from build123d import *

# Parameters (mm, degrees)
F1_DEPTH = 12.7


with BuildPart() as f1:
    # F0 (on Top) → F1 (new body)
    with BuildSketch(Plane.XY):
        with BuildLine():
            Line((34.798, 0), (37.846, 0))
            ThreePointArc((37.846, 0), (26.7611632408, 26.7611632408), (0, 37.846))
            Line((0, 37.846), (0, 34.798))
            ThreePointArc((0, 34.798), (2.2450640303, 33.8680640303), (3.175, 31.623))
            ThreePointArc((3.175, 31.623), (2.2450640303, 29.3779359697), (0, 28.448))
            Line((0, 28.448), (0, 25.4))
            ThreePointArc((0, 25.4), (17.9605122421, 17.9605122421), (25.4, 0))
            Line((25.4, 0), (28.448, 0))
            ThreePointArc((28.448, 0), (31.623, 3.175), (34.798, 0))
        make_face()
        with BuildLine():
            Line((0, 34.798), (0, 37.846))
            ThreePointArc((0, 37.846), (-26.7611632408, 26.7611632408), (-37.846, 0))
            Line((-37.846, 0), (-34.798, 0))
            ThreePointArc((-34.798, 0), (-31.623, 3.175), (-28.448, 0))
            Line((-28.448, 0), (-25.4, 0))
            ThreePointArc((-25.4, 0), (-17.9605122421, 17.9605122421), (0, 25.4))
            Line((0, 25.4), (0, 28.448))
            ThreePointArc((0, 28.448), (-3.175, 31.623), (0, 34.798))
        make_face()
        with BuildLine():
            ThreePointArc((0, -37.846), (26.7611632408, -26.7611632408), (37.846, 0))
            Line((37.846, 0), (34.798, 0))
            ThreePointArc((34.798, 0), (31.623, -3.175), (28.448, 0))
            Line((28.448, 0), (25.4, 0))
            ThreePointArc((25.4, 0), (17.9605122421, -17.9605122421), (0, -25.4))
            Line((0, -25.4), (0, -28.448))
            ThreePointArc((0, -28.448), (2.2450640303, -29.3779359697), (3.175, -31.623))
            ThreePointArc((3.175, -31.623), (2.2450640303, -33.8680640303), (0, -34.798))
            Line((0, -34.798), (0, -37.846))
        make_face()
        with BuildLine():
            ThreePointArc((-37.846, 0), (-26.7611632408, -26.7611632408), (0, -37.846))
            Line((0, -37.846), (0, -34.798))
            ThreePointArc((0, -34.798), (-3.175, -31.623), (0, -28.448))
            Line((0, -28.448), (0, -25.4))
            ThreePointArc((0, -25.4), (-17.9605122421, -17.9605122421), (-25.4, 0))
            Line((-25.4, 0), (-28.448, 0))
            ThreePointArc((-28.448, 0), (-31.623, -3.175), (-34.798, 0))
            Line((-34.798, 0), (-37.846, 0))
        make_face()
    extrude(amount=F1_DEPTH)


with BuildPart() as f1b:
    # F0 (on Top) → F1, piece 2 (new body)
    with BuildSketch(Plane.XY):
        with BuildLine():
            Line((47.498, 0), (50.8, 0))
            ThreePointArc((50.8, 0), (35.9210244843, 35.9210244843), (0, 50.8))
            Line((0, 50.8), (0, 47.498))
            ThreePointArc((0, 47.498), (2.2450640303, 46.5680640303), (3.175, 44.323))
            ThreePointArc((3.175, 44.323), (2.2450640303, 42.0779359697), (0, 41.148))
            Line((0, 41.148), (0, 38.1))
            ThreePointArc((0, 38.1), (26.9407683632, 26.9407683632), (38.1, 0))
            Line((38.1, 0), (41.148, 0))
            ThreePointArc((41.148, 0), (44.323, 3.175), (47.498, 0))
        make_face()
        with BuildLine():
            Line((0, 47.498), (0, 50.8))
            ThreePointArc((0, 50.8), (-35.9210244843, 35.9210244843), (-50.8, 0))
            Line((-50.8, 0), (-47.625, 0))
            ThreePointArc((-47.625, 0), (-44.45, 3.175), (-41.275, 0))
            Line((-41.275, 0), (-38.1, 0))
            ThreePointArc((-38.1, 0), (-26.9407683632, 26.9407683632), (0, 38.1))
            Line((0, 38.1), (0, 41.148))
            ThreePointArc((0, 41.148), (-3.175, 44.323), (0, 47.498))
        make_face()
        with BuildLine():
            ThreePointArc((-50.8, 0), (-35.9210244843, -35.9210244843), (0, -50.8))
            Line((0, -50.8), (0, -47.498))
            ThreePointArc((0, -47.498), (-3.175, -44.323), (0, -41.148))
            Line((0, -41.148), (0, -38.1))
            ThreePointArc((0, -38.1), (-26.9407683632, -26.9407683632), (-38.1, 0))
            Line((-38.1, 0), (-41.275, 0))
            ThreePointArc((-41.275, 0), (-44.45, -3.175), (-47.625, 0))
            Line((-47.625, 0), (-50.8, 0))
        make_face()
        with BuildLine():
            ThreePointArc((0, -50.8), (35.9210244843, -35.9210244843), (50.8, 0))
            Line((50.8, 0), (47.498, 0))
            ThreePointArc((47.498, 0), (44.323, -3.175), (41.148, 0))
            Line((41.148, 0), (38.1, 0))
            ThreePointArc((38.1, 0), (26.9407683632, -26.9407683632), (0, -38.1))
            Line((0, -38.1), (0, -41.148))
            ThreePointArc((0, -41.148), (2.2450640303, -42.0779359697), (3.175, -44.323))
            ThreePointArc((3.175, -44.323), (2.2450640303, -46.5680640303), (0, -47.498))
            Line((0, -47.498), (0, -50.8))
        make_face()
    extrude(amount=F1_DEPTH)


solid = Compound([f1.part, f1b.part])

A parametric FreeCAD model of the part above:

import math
import FreeCAD as App
import Part
import Sketcher
from FreeCAD import Vector
Q = App.Units.Quantity

doc = App.newDocument("Part")
body = doc.addObject("PartDesign::Body", "Body")

# Sketch on XY plane
sketch1 = doc.addObject("Sketcher::SketchObject", "Sketch")
body.addObject(sketch1)
sketch1.AttachmentSupport = (doc.XY_Plane, [""])
sketch1.MapMode = "FlatFace"
sketch1.addGeometry(Part.ArcOfCircle(Part.Circle(Vector(0, 0, 0), Vector(0, 0, 1), 37.846), math.radians(0), math.radians(90)), False)
sketch1.addGeometry(Part.ArcOfCircle(Part.Circle(Vector(0, 0, 0), Vector(0, 0, 1), 37.846), math.radians(90), math.radians(180)), False)
sketch1.addGeometry(Part.ArcOfCircle(Part.Circle(Vector(0, 0, 0), Vector(0, 0, 1), 37.846), math.radians(180), math.radians(270)), False)
sketch1.addGeometry(Part.ArcOfCircle(Part.Circle(Vector(0, 0, 0), Vector(0, 0, 1), 37.846), math.radians(-90), math.radians(0)), False)
sketch1.addGeometry(Part.Circle(Vector(-31.623, 0, 0), Vector(0, 0, 1), 3.175), False)
sketch1.addGeometry(Part.ArcOfCircle(Part.Circle(Vector(0, 0, 0), Vector(0, 0, 1), 25.4), math.radians(90), math.radians(180)), False)
sketch1.addGeometry(Part.ArcOfCircle(Part.Circle(Vector(0, 0, 0), Vector(0, 0, 1), 25.4), math.radians(0), math.radians(90)), False)
sketch1.addGeometry(Part.ArcOfCircle(Part.Circle(Vector(0, 0, 0), Vector(0, 0, 1), 25.4), math.radians(-90), math.radians(0)), False)
sketch1.addGeometry(Part.ArcOfCircle(Part.Circle(Vector(0, 0, 0), Vector(0, 0, 1), 25.4), math.radians(180), math.radians(270)), False)
sketch1.addGeometry(Part.ArcOfCircle(Part.Circle(Vector(0, -31.623, 0), Vector(0, 0, 1), 3.175), math.radians(0), math.radians(90)), False)
sketch1.addGeometry(Part.ArcOfCircle(Part.Circle(Vector(0, -31.623, 0), Vector(0, 0, 1), 3.175), math.radians(-90), math.radians(0)), False)
sketch1.addGeometry(Part.ArcOfCircle(Part.Circle(Vector(0, -31.623, 0), Vector(0, 0, 1), 3.175), math.radians(90), math.radians(270)), False)
sketch1.addGeometry(Part.Circle(Vector(31.623, 0, 0), Vector(0, 0, 1), 3.175), False)
sketch1.addGeometry(Part.ArcOfCircle(Part.Circle(Vector(0, 31.623, 0), Vector(0, 0, 1), 3.175), math.radians(0), math.radians(90)), False)
sketch1.addGeometry(Part.ArcOfCircle(Part.Circle(Vector(0, 31.623, 0), Vector(0, 0, 1), 3.175), math.radians(-90), math.radians(0)), False)
sketch1.addGeometry(Part.ArcOfCircle(Part.Circle(Vector(0, 31.623, 0), Vector(0, 0, 1), 3.175), math.radians(90), math.radians(270)), False)
sketch1.addConstraint(Sketcher.Constraint("Tangent", 0, 2, 1, 1))
sketch1.addConstraint(Sketcher.Constraint("Tangent", 1, 2, 2, 1))
sketch1.addConstraint(Sketcher.Constraint("Tangent", 2, 2, 3, 1))
sketch1.addConstraint(Sketcher.Constraint("Tangent", 3, 2, 0, 1))
sketch1.addConstraint(Sketcher.Constraint("Tangent", 5, 1, 6, 2))
sketch1.addConstraint(Sketcher.Constraint("Tangent", 6, 1, 7, 2))
sketch1.addConstraint(Sketcher.Constraint("Tangent", 7, 1, 8, 2))
sketch1.addConstraint(Sketcher.Constraint("Tangent", 8, 1, 5, 2))
sketch1.addConstraint(Sketcher.Constraint("Tangent", 9, 1, 10, 2))
sketch1.addConstraint(Sketcher.Constraint("Tangent", 10, 1, 11, 2))
sketch1.addConstraint(Sketcher.Constraint("Tangent", 11, 1, 9, 2))
sketch1.addConstraint(Sketcher.Constraint("Tangent", 13, 1, 14, 2))
sketch1.addConstraint(Sketcher.Constraint("Tangent", 14, 1, 15, 2))
sketch1.addConstraint(Sketcher.Constraint("Tangent", 15, 1, 13, 2))
sketch1.addConstraint(Sketcher.Constraint("Coincident", 0, 3, -1, 1))
sketch1.addConstraint(Sketcher.Constraint("Coincident", 5, 3, -1, 1))
sketch1.addConstraint(Sketcher.Constraint("Equal", 0, 1))
sketch1.addConstraint(Sketcher.Constraint("Equal", 5, 6))
sketch1.addConstraint(Sketcher.Constraint("Equal", 4, 9))
sketch1.addConstraint(Sketcher.Constraint("Equal", 11, 12))
sketch1.addConstraint(Sketcher.Constraint("Equal", 12, 13))
sketch1.addConstraint(Sketcher.Constraint("Symmetric", 4, 3, 12, 3, -1, 1))
sketch1.addConstraint(Sketcher.Constraint("Symmetric", 9, 3, 13, 3, -1, 1))
sketch1.addConstraint(Sketcher.Constraint("Symmetric", 9, 1, 13, 1, -1))
sketch1.addConstraint(Sketcher.Constraint("PointOnObject", 4, 3, -1))
sketch1.addConstraint(Sketcher.Constraint("PointOnObject", 0, 2, -2))
sketch1.addConstraint(Sketcher.Constraint("PointOnObject", 1, 2, -1))
sketch1.addConstraint(Sketcher.Constraint("PointOnObject", 2, 2, -2))
sketch1.addConstraint(Sketcher.Constraint("PointOnObject", 3, 2, -1))
sketch1.addConstraint(Sketcher.Constraint("PointOnObject", 5, 1, -2))
sketch1.addConstraint(Sketcher.Constraint("PointOnObject", 6, 1, -1))
sketch1.addConstraint(Sketcher.Constraint("PointOnObject", 7, 1, -2))
sketch1.addConstraint(Sketcher.Constraint("PointOnObject", 8, 1, -1))
sketch1.addConstraint(Sketcher.Constraint("PointOnObject", 10, 1, -2))
sketch1.addConstraint(Sketcher.Constraint("PointOnObject", 11, 1, -2))
sketch1.addConstraint(Sketcher.Constraint("PointOnObject", 14, 1, -2))
sketch1.addConstraint(Sketcher.Constraint("PointOnObject", 15, 1, -2))
sketch1.addConstraint(Sketcher.Constraint("Horizontal", 11, 3, 9, 1))
sketch1.addConstraint(Sketcher.Constraint("Radius", 5, Q("1 in")))
sketch1.addConstraint(Sketcher.Constraint("Diameter", 4, Q("0.25 in")))
sketch1.addConstraint(Sketcher.Constraint("Radius", 0, Q("1.49 in")))
sketch1.addConstraint(Sketcher.Constraint("DistanceY", 10, 1, -1, 1, Q("1.37 in")))
sketch1.addConstraint(Sketcher.Constraint("DistanceX", 4, 3, -1, 1, Q("1.245 in")))
pad1 = doc.addObject("PartDesign::Pad", "Pad")
body.addObject(pad1)
pad1.Profile = sketch1
pad1.Length = Q("0.5 in")
body2 = doc.addObject("PartDesign::Body", "Body001")

# Sketch on XY plane
sketch2 = doc.addObject("Sketcher::SketchObject", "Sketch001")
body2.addObject(sketch2)
sketch2.AttachmentSupport = (doc.getObject("XY_Plane001"), [""])
sketch2.MapMode = "FlatFace"
sketch2.addGeometry(Part.ArcOfCircle(Part.Circle(Vector(0, 0, 0), Vector(0, 0, 1), 50.8), math.radians(0), math.radians(90)), False)
sketch2.addGeometry(Part.ArcOfCircle(Part.Circle(Vector(0, 0, 0), Vector(0, 0, 1), 50.8), math.radians(90), math.radians(180)), False)
sketch2.addGeometry(Part.ArcOfCircle(Part.Circle(Vector(0, 0, 0), Vector(0, 0, 1), 50.8), math.radians(180), math.radians(270)), False)
sketch2.addGeometry(Part.ArcOfCircle(Part.Circle(Vector(0, 0, 0), Vector(0, 0, 1), 50.8), math.radians(-90), math.radians(0)), False)
sketch2.addGeometry(Part.ArcOfCircle(Part.Circle(Vector(0, -44.323, 0), Vector(0, 0, 1), 3.175), math.radians(90), math.radians(270)), False)
sketch2.addGeometry(Part.ArcOfCircle(Part.Circle(Vector(0, -44.323, 0), Vector(0, 0, 1), 3.175), math.radians(0), math.radians(90)), False)
sketch2.addGeometry(Part.ArcOfCircle(Part.Circle(Vector(0, -44.323, 0), Vector(0, 0, 1), 3.175), math.radians(-90), math.radians(0)), False)
sketch2.addGeometry(Part.ArcOfCircle(Part.Circle(Vector(0, 0, 0), Vector(0, 0, 1), 38.1), math.radians(180), math.radians(270)), False)
sketch2.addGeometry(Part.ArcOfCircle(Part.Circle(Vector(0, 0, 0), Vector(0, 0, 1), 38.1), math.radians(90), math.radians(180)), False)
sketch2.addGeometry(Part.ArcOfCircle(Part.Circle(Vector(0, 0, 0), Vector(0, 0, 1), 38.1), math.radians(0), math.radians(90)), False)
sketch2.addGeometry(Part.ArcOfCircle(Part.Circle(Vector(0, 0, 0), Vector(0, 0, 1), 38.1), math.radians(-90), math.radians(0)), False)
sketch2.addGeometry(Part.Circle(Vector(44.323, 0, 0), Vector(0, 0, 1), 3.175), False)
sketch2.addGeometry(Part.Circle(Vector(-44.45, 0, 0), Vector(0, 0, 1), 3.175), False)
sketch2.addGeometry(Part.ArcOfCircle(Part.Circle(Vector(0, 44.323, 0), Vector(0, 0, 1), 3.175), math.radians(0), math.radians(90)), False)
sketch2.addGeometry(Part.ArcOfCircle(Part.Circle(Vector(0, 44.323, 0), Vector(0, 0, 1), 3.175), math.radians(-90), math.radians(0)), False)
sketch2.addGeometry(Part.ArcOfCircle(Part.Circle(Vector(0, 44.323, 0), Vector(0, 0, 1), 3.175), math.radians(90), math.radians(270)), False)
sketch2.addConstraint(Sketcher.Constraint("Tangent", 0, 2, 1, 1))
sketch2.addConstraint(Sketcher.Constraint("Tangent", 1, 2, 2, 1))
sketch2.addConstraint(Sketcher.Constraint("Tangent", 2, 2, 3, 1))
sketch2.addConstraint(Sketcher.Constraint("Tangent", 3, 2, 0, 1))
sketch2.addConstraint(Sketcher.Constraint("Tangent", 4, 1, 5, 2))
sketch2.addConstraint(Sketcher.Constraint("Tangent", 5, 1, 6, 2))
sketch2.addConstraint(Sketcher.Constraint("Tangent", 6, 1, 4, 2))
sketch2.addConstraint(Sketcher.Constraint("Tangent", 7, 1, 8, 2))
sketch2.addConstraint(Sketcher.Constraint("Tangent", 8, 1, 9, 2))
sketch2.addConstraint(Sketcher.Constraint("Tangent", 9, 1, 10, 2))
sketch2.addConstraint(Sketcher.Constraint("Tangent", 10, 1, 7, 2))
sketch2.addConstraint(Sketcher.Constraint("Tangent", 13, 1, 14, 2))
sketch2.addConstraint(Sketcher.Constraint("Tangent", 14, 1, 15, 2))
sketch2.addConstraint(Sketcher.Constraint("Tangent", 15, 1, 13, 2))
sketch2.addConstraint(Sketcher.Constraint("Coincident", 0, 3, -1, 1))
sketch2.addConstraint(Sketcher.Constraint("Coincident", 7, 3, -1, 1))
sketch2.addConstraint(Sketcher.Constraint("Equal", 0, 1))
sketch2.addConstraint(Sketcher.Constraint("Equal", 7, 8))
sketch2.addConstraint(Sketcher.Constraint("Equal", 6, 11))
sketch2.addConstraint(Sketcher.Constraint("Equal", 11, 12))
sketch2.addConstraint(Sketcher.Constraint("Equal", 12, 13))
sketch2.addConstraint(Sketcher.Constraint("Symmetric", 4, 3, 13, 3, -1, 1))
sketch2.addConstraint(Sketcher.Constraint("Symmetric", 5, 1, 13, 1, -1))
sketch2.addConstraint(Sketcher.Constraint("PointOnObject", 11, 3, -1))
sketch2.addConstraint(Sketcher.Constraint("PointOnObject", 12, 3, -1))
sketch2.addConstraint(Sketcher.Constraint("PointOnObject", 0, 2, -2))
sketch2.addConstraint(Sketcher.Constraint("PointOnObject", 1, 2, -1))
sketch2.addConstraint(Sketcher.Constraint("PointOnObject", 2, 2, -2))
sketch2.addConstraint(Sketcher.Constraint("PointOnObject", 3, 2, -1))
sketch2.addConstraint(Sketcher.Constraint("PointOnObject", 4, 1, -2))
sketch2.addConstraint(Sketcher.Constraint("PointOnObject", 6, 1, -2))
sketch2.addConstraint(Sketcher.Constraint("PointOnObject", 7, 1, -1))
sketch2.addConstraint(Sketcher.Constraint("PointOnObject", 8, 1, -2))
sketch2.addConstraint(Sketcher.Constraint("PointOnObject", 9, 1, -1))
sketch2.addConstraint(Sketcher.Constraint("PointOnObject", 10, 1, -2))
sketch2.addConstraint(Sketcher.Constraint("PointOnObject", 14, 1, -2))
sketch2.addConstraint(Sketcher.Constraint("PointOnObject", 15, 1, -2))
sketch2.addConstraint(Sketcher.Constraint("Horizontal", 6, 3, 5, 1))
sketch2.addConstraint(Sketcher.Constraint("Radius", 0, Q("2 in")))
sketch2.addConstraint(Sketcher.Constraint("Radius", 7, Q("1.5 in")))
sketch2.addConstraint(Sketcher.Constraint("Diameter", 11, Q("0.25 in")))
sketch2.addConstraint(Sketcher.Constraint("DistanceX", 12, 3, -1, 1, Q("1.75 in")))
sketch2.addConstraint(Sketcher.Constraint("DistanceY", 4, 1, -1, 1, Q("1.62 in")))
sketch2.addConstraint(Sketcher.Constraint("DistanceX", -1, 1, 11, 3, Q("1.745 in")))
pad2 = doc.addObject("PartDesign::Pad", "Pad001")
body2.addObject(pad2)
pad2.Profile = sketch2
pad2.Length = Q("0.5 in")

doc.recompute()
